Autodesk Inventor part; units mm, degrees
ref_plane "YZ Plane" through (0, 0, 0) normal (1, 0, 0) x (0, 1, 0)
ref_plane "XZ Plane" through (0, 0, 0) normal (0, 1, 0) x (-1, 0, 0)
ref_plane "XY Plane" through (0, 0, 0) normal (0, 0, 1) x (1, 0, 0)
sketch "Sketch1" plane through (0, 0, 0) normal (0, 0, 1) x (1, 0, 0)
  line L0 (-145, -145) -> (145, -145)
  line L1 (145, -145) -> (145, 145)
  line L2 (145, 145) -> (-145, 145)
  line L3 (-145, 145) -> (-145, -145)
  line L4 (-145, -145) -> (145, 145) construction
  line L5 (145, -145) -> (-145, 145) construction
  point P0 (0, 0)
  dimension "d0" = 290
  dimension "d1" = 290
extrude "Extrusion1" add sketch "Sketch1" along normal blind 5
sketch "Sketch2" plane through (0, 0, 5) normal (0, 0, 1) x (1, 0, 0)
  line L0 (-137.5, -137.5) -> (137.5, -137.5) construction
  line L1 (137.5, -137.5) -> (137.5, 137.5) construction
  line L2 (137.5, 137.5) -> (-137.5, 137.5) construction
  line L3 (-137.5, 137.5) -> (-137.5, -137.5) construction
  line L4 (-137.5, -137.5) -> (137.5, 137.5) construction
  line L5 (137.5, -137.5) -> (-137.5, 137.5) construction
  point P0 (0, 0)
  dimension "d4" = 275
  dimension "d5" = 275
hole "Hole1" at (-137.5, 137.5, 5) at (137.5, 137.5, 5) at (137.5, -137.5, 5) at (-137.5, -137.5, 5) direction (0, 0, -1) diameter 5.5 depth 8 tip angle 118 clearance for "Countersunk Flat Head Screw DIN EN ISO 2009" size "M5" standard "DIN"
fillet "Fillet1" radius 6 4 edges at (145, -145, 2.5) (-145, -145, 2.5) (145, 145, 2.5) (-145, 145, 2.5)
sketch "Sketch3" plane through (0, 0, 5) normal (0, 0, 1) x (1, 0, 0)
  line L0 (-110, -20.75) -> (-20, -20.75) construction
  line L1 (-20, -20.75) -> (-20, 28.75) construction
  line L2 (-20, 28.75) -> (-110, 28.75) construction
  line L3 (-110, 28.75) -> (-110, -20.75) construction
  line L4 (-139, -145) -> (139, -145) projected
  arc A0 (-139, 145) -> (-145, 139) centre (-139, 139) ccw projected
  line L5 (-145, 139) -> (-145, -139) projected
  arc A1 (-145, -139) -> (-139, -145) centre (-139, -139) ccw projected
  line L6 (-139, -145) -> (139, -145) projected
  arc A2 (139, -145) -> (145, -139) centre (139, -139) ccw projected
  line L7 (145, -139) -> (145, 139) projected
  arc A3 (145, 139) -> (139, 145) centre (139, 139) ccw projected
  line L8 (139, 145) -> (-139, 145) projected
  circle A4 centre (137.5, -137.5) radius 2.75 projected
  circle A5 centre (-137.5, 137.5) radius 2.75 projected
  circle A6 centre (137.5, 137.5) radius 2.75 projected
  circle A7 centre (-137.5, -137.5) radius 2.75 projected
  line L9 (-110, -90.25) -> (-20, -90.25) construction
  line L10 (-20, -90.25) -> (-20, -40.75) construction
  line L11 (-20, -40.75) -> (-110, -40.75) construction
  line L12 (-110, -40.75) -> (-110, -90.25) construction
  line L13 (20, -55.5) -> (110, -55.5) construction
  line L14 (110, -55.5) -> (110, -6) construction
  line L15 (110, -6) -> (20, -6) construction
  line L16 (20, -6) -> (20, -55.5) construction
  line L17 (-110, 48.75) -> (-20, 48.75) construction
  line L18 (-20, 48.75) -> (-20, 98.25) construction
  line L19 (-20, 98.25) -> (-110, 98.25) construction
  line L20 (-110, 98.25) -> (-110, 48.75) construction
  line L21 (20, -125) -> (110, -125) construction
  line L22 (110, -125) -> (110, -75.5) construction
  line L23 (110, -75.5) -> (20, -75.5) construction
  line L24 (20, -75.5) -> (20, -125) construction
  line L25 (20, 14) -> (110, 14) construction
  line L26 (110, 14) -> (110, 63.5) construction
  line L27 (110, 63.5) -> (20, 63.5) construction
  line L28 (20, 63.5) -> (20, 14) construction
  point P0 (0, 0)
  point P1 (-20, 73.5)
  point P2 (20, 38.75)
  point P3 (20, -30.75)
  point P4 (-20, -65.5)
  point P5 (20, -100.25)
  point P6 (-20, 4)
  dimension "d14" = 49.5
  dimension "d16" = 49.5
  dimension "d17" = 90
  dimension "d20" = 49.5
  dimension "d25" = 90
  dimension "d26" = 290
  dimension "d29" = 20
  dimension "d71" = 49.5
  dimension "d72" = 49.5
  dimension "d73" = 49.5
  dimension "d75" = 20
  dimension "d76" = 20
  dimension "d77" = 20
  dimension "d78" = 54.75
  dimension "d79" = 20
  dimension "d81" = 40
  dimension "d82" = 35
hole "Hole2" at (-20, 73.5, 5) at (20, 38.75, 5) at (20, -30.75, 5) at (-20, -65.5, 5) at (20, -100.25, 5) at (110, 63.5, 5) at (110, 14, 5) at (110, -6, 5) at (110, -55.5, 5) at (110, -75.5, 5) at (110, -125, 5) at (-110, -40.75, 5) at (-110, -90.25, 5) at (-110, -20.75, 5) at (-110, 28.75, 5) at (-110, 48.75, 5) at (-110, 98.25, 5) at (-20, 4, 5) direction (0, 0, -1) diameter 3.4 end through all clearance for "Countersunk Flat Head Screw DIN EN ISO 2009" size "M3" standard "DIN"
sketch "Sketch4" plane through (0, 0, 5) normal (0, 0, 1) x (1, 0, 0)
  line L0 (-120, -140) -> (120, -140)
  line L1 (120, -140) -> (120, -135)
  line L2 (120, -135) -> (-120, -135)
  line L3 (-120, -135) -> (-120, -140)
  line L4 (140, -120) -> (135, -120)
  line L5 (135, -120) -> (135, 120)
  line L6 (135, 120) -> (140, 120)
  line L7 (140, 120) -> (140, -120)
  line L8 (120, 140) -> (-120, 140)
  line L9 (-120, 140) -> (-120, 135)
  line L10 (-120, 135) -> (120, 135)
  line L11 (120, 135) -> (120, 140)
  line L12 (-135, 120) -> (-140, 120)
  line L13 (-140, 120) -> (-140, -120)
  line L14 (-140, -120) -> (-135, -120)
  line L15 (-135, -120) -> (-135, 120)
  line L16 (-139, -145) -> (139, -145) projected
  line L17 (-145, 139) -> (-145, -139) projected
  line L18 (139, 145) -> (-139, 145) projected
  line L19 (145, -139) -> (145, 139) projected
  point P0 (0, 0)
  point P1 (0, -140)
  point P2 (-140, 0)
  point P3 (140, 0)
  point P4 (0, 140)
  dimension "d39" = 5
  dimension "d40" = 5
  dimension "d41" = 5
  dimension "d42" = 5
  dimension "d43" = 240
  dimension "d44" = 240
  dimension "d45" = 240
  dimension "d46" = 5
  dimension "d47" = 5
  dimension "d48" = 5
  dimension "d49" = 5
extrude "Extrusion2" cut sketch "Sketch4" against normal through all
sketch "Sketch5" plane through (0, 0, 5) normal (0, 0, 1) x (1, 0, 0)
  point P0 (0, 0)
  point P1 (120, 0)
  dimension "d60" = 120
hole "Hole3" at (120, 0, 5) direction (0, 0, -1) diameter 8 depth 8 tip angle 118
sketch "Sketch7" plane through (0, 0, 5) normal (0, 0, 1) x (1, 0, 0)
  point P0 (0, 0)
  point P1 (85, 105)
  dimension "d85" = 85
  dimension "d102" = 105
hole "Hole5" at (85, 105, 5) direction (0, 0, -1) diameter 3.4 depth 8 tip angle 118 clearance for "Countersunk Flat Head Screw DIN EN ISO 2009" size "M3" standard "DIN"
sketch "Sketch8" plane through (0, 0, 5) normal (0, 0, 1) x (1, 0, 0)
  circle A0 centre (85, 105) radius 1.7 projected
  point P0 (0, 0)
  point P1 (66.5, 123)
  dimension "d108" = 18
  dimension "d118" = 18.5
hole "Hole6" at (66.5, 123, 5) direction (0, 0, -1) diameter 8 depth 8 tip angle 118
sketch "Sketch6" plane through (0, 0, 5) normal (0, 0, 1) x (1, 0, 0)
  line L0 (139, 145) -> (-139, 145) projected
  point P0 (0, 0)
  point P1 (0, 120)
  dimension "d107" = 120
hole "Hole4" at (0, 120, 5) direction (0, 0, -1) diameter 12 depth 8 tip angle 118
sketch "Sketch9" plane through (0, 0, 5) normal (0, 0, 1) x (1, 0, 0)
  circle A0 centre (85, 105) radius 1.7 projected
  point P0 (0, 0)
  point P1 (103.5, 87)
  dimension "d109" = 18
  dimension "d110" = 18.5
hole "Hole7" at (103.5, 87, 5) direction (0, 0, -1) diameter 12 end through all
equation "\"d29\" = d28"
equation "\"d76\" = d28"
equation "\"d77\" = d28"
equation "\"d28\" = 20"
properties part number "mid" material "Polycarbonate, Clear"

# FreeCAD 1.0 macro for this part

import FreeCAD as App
import Part
import Sketcher

V = App.Vector


def edges_at(feature, points):
    """Names of the edges that pass closest to the given points."""
    edges = feature.Shape.Edges
    near = lambda p: min(range(len(edges)), key=lambda i: edges[i].distToShape(Part.Vertex(*p))[0])
    return sorted({f"Edge{near(p) + 1}" for p in points})

doc = App.newDocument("Part")
body = doc.addObject("PartDesign::Body", "Body")

sketch1 = doc.addObject("Sketcher::SketchObject", "Sketch")
body.addObject(sketch1)
sketch1.AttachmentSupport = (doc.XY_Plane, [""])
sketch1.MapMode = "FlatFace"
sketch1.addGeometry([
    Part.LineSegment(V(-145, 145, 0), V(-145, -145, 0)),
    Part.LineSegment(V(-145, -145, 0), V(145, -145, 0)),
    Part.LineSegment(V(145, -145, 0), V(145, 145, 0)),
    Part.LineSegment(V(145, 145, 0), V(-145, 145, 0)),
], False)
sketch1.addConstraint([
    Sketcher.Constraint("Coincident", 0, 2, 1, 1),
    Sketcher.Constraint("Coincident", 1, 2, 2, 1),
    Sketcher.Constraint("Coincident", 2, 2, 3, 1),
    Sketcher.Constraint("Coincident", 3, 2, 0, 1),
    Sketcher.Constraint("Vertical", 0),
    Sketcher.Constraint("Horizontal", 1),
    Sketcher.Constraint("Vertical", 2),
    Sketcher.Constraint("Horizontal", 3),
    Sketcher.Constraint("Symmetric", 0, 2, 2, 2, -1, 1),
    Sketcher.Constraint("Equal", 3, 0),
    Sketcher.Constraint("DistanceX", 1, 1, 1, 2, 290.0),
])
pad1 = doc.addObject("PartDesign::Pad", "Pad")
body.addObject(pad1)
pad1.Profile = sketch1
pad1.Length = 5

sketch2 = doc.addObject("Sketcher::SketchObject", "Sketch001")
body.addObject(sketch2)
sketch2.AttachmentSupport = (doc.XY_Plane, [""])
sketch2.MapMode = "FlatFace"
sketch2.AttachmentOffset = App.Placement(V(0, 0, 5), App.Rotation())
sketch2.addGeometry([
    Part.Circle(V(-137.5, 137.5, 0), V(0, 0, 1), 2.75),
    Part.Circle(V(137.5, 137.5, 0), V(0, 0, 1), 2.75),
    Part.Circle(V(137.5, -137.5, 0), V(0, 0, 1), 2.75),
    Part.Circle(V(-137.5, -137.5, 0), V(0, 0, 1), 2.75),
], False)
sketch2.addConstraint([
    Sketcher.Constraint("Equal", 0, 1),
    Sketcher.Constraint("Equal", 1, 2),
    Sketcher.Constraint("Equal", 2, 3),
    Sketcher.Constraint("Symmetric", 0, 3, 2, 3, -1, 1),
    Sketcher.Constraint("Symmetric", 1, 3, 3, 3, -1, 1),
    Sketcher.Constraint("Symmetric", 0, 3, 1, 3, -2),
    Sketcher.Constraint("Diameter", 0, 5.5),
    Sketcher.Constraint("DistanceX", 0, 3, 1, 3, 275.0),
    Sketcher.Constraint("DistanceY", 2, 3, 1, 3, 275.0),
])
doc.recompute()
hole = doc.addObject("PartDesign::Hole", "Hole")
body.addObject(hole)
hole.Profile = sketch2
hole.ThreadType = "None"
hole.Diameter = 5.5
hole.DepthType = "Dimension"
hole.Depth = 8
hole.DrillPoint = "Angled"
hole.DrillPointAngle = 118
doc.recompute()

fillet = doc.addObject("PartDesign::Fillet", "Fillet")
body.addObject(fillet)
fillet.Base = (hole, edges_at(hole, [
    (145, -145, 2.5),
    (-145, -145, 2.5),
    (145, 145, 2.5),
    (-145, 145, 2.5),
]))
fillet.Radius = 6

sketch3 = doc.addObject("Sketcher::SketchObject", "Sketch002")
body.addObject(sketch3)
sketch3.AttachmentSupport = (doc.XY_Plane, [""])
sketch3.MapMode = "FlatFace"
sketch3.AttachmentOffset = App.Placement(V(0, 0, 5), App.Rotation())
sketch3.addGeometry([
    Part.Circle(V(-20, 73.5, 0), V(0, 0, 1), 1.7),
    Part.Circle(V(20, 38.75, 0), V(0, 0, 1), 1.7),
    Part.Circle(V(20, -30.75, 0), V(0, 0, 1), 1.7),
    Part.Circle(V(-20, -65.5, 0), V(0, 0, 1), 1.7),
    Part.Circle(V(20, -100.25, 0), V(0, 0, 1), 1.7),
    Part.Circle(V(110, 63.5, 0), V(0, 0, 1), 1.7),
    Part.Circle(V(110, 14, 0), V(0, 0, 1), 1.7),
    Part.Circle(V(110, -6, 0), V(0, 0, 1), 1.7),
    Part.Circle(V(110, -55.5, 0), V(0, 0, 1), 1.7),
    Part.Circle(V(110, -75.5, 0), V(0, 0, 1), 1.7),
    Part.Circle(V(110, -125, 0), V(0, 0, 1), 1.7),
    Part.Circle(V(-110, -40.75, 0), V(0, 0, 1), 1.7),
    Part.Circle(V(-110, -90.25, 0), V(0, 0, 1), 1.7),
    Part.Circle(V(-110, -20.75, 0), V(0, 0, 1), 1.7),
    Part.Circle(V(-110, 28.75, 0), V(0, 0, 1), 1.7),
    Part.Circle(V(-110, 48.75, 0), V(0, 0, 1), 1.7),
    Part.Circle(V(-110, 98.25, 0), V(0, 0, 1), 1.7),
    Part.Circle(V(-20, 4, 0), V(0, 0, 1), 1.7),
], False)
sketch3.addConstraint([
    Sketcher.Constraint("Equal", 0, 1),
    Sketcher.Constraint("Equal", 1, 2),
    Sketcher.Constraint("Equal", 2, 3),
    Sketcher.Constraint("Equal", 3, 4),
    Sketcher.Constraint("Equal", 4, 5),
    Sketcher.Constraint("Equal", 5, 6),
    Sketcher.Constraint("Equal", 6, 7),
    Sketcher.Constraint("Equal", 7, 8),
    Sketcher.Constraint("Equal", 8, 9),
    Sketcher.Constraint("Equal", 9, 10),
    Sketcher.Constraint("Equal", 10, 11),
    Sketcher.Constraint("Equal", 11, 12),
    Sketcher.Constraint("Equal", 12, 13),
    Sketcher.Constraint("Equal", 13, 14),
    Sketcher.Constraint("Equal", 14, 15),
    Sketcher.Constraint("Equal", 15, 16),
    Sketcher.Constraint("Equal", 16, 17),
    Sketcher.Constraint("Vertical", 1, 3, 2, 3),
    Sketcher.Constraint("Vertical", 0, 3, 3, 3),
    Sketcher.Constraint("Vertical", 2, 3, 4, 3),
    Sketcher.Constraint("Vertical", 5, 3, 6, 3),
    Sketcher.Constraint("Vertical", 6, 3, 7, 3),
    Sketcher.Constraint("Vertical", 7, 3, 8, 3),
    Sketcher.Constraint("Vertical", 8, 3, 9, 3),
    Sketcher.Constraint("Vertical", 9, 3, 10, 3),
    Sketcher.Constraint("Vertical", 11, 3, 12, 3),
    Sketcher.Constraint("Vertical", 12, 3, 13, 3),
    Sketcher.Constraint("Vertical", 13, 3, 14, 3),
    Sketcher.Constraint("Vertical", 14, 3, 15, 3),
    Sketcher.Constraint("Vertical", 15, 3, 16, 3),
    Sketcher.Constraint("Vertical", 3, 3, 17, 3),
    Sketcher.Constraint("Diameter", 0, 3.4),
    Sketcher.Constraint("DistanceX", 0, 3, -1, 1, 20.0),
    Sketcher.Constraint("DistanceX", -1, 1, 1, 3, 20.0),
    Sketcher.Constraint("DistanceX", -1, 1, 5, 3, 110.0),
    Sketcher.Constraint("DistanceY", -1, 1, 6, 3, 14.0),
    Sketcher.Constraint("DistanceY", 7, 3, -1, 1, 6.0),
    Sketcher.Constraint("DistanceY", 10, 3, -1, 1, 125.0),
    Sketcher.Constraint("DistanceX", 11, 3, -1, 1, 110.0),
    Sketcher.Constraint("DistanceY", -1, 1, 17, 3, 4.0),
    Sketcher.Constraint("DistanceY", 3, 3, 0, 3, 139.0),
    Sketcher.Constraint("DistanceY", 4, 3, 1, 3, 139.0),
    Sketcher.Constraint("DistanceY", 5, 3, 0, 3, 10.0),
    Sketcher.Constraint("DistanceY", 8, 3, 5, 3, 119.0),
    Sketcher.Constraint("DistanceY", 9, 3, 8, 3, 20.0),
    Sketcher.Constraint("DistanceY", 11, 3, 2, 3, 10.0),
    Sketcher.Constraint("DistanceY", 4, 3, 12, 3, 10.0),
    Sketcher.Constraint("DistanceY", 11, 3, 13, 3, 20.0),
    Sketcher.Constraint("DistanceY", 12, 3, 14, 3, 119.0),
    Sketcher.Constraint("DistanceY", 14, 3, 15, 3, 20.0),
    Sketcher.Constraint("DistanceY", 13, 3, 16, 3, 119.0),
    Sketcher.Constraint("DistanceY", -1, 1, 0, 3, 73.5),
    Sketcher.Constraint("DistanceY", 2, 3, 1, 3, 69.5),
    Sketcher.Constraint("DistanceY", -1, 1, 1, 3, 38.75),
])
doc.recompute()
hole2 = doc.addObject("PartDesign::Hole", "Hole001")
body.addObject(hole2)
hole2.Profile = sketch3
hole2.ThreadType = "None"
hole2.Diameter = 3.4
hole2.DepthType = "ThroughAll"

sketch4 = doc.addObject("Sketcher::SketchObject", "Sketch003")
body.addObject(sketch4)
sketch4.AttachmentSupport = (doc.XY_Plane, [""])
sketch4.MapMode = "FlatFace"
sketch4.AttachmentOffset = App.Placement(V(0, 0, 5), App.Rotation())
sketch4.addGeometry([
    Part.LineSegment(V(-120, -135, 0), V(-120, -140, 0)),
    Part.LineSegment(V(-120, -140, 0), V(120, -140, 0)),
    Part.LineSegment(V(120, -140, 0), V(120, -135, 0)),
    Part.LineSegment(V(120, -135, 0), V(-120, -135, 0)),
    Part.LineSegment(V(135, -120, 0), V(140, -120, 0)),
    Part.LineSegment(V(140, -120, 0), V(140, 120, 0)),
    Part.LineSegment(V(140, 120, 0), V(135, 120, 0)),
    Part.LineSegment(V(135, 120, 0), V(135, -120, 0)),
    Part.LineSegment(V(120, 135, 0), V(120, 140, 0)),
    Part.LineSegment(V(120, 140, 0), V(-120, 140, 0)),
    Part.LineSegment(V(-120, 140, 0), V(-120, 135, 0)),
    Part.LineSegment(V(-120, 135, 0), V(120, 135, 0)),
    Part.LineSegment(V(-135, -120, 0), V(-135, 120, 0)),
    Part.LineSegment(V(-135, 120, 0), V(-140, 120, 0)),
    Part.LineSegment(V(-140, 120, 0), V(-140, -120, 0)),
    Part.LineSegment(V(-140, -120, 0), V(-135, -120, 0)),
], False)
sketch4.addConstraint([
    Sketcher.Constraint("Coincident", 0, 2, 1, 1),
    Sketcher.Constraint("Coincident", 1, 2, 2, 1),
    Sketcher.Constraint("Coincident", 2, 2, 3, 1),
    Sketcher.Constraint("Coincident", 3, 2, 0, 1),
    Sketcher.Constraint("Coincident", 4, 2, 5, 1),
    Sketcher.Constraint("Coincident", 5, 2, 6, 1),
    Sketcher.Constraint("Coincident", 6, 2, 7, 1),
    Sketcher.Constraint("Coincident", 7, 2, 4, 1),
    Sketcher.Constraint("Coincident", 8, 2, 9, 1),
    Sketcher.Constraint("Coincident", 9, 2, 10, 1),
    Sketcher.Constraint("Coincident", 10, 2, 11, 1),
    Sketcher.Constraint("Coincident", 11, 2, 8, 1),
    Sketcher.Constraint("Coincident", 12, 2, 13, 1),
    Sketcher.Constraint("Coincident", 13, 2, 14, 1),
    Sketcher.Constraint("Coincident", 14, 2, 15, 1),
    Sketcher.Constraint("Coincident", 15, 2, 12, 1),
    Sketcher.Constraint("Vertical", 0),
    Sketcher.Constraint("Horizontal", 1),
    Sketcher.Constraint("Vertical", 2),
    Sketcher.Constraint("Horizontal", 3),
    Sketcher.Constraint("Horizontal", 4),
    Sketcher.Constraint("Vertical", 5),
    Sketcher.Constraint("Horizontal", 6),
    Sketcher.Constraint("Vertical", 7),
    Sketcher.Constraint("Vertical", 8),
    Sketcher.Constraint("Horizontal", 9),
    Sketcher.Constraint("Vertical", 10),
    Sketcher.Constraint("Horizontal", 11),
    Sketcher.Constraint("Vertical", 12),
    Sketcher.Constraint("Horizontal", 13),
    Sketcher.Constraint("Vertical", 14),
    Sketcher.Constraint("Horizontal", 15),
    Sketcher.Constraint("Symmetric", 0, 2, 8, 2, -1, 1),
    Sketcher.Constraint("Symmetric", 2, 2, 10, 2, -1, 1),
    Sketcher.Constraint("Symmetric", 7, 2, 12, 2, -1, 1),
    Sketcher.Constraint("Symmetric", 5, 2, 14, 2, -1, 1),
    Sketcher.Constraint("Horizontal", 6, 2, 12, 2),
    Sketcher.Constraint("Vertical", 2, 2, 8, 2),
    Sketcher.Constraint("Equal", 15, 0),
    Sketcher.Constraint("Equal", 11, 5),
    Sketcher.Constraint("DistanceX", 1, 1, 1, 2, 240.0),
    Sketcher.Constraint("DistanceX", 4, 1, 4, 2, 5.0),
    Sketcher.Constraint("DistanceY", 0, 2, -1, 1, 140.0),
    Sketcher.Constraint("DistanceX", -1, 1, 4, 2, 140.0),
])
pocket1 = doc.addObject("PartDesign::Pocket", "Pocket")
body.addObject(pocket1)
pocket1.Profile = sketch4
pocket1.Type = "ThroughAll"

sketch5 = doc.addObject("Sketcher::SketchObject", "Sketch004")
body.addObject(sketch5)
sketch5.AttachmentSupport = (doc.XY_Plane, [""])
sketch5.MapMode = "FlatFace"
sketch5.AttachmentOffset = App.Placement(V(0, 0, 5), App.Rotation())
sketch5.addGeometry(Part.Circle(V(120, 0, 0), V(0, 0, 1), 4), False)
sketch5.addConstraint([
    Sketcher.Constraint("PointOnObject", 0, 3, -1),
    Sketcher.Constraint("Diameter", 0, 8.0),
    Sketcher.Constraint("DistanceX", -1, 1, 0, 3, 120.0),
])
doc.recompute()
hole3 = doc.addObject("PartDesign::Hole", "Hole002")
body.addObject(hole3)
hole3.Profile = sketch5
hole3.ThreadType = "None"
hole3.Diameter = 8
hole3.DepthType = "Dimension"
hole3.Depth = 8
hole3.DrillPoint = "Angled"
hole3.DrillPointAngle = 118

sketch6 = doc.addObject("Sketcher::SketchObject", "Sketch005")
body.addObject(sketch6)
sketch6.AttachmentSupport = (doc.XY_Plane, [""])
sketch6.MapMode = "FlatFace"
sketch6.AttachmentOffset = App.Placement(V(0, 0, 5), App.Rotation())
sketch6.addGeometry(Part.Circle(V(85, 105, 0), V(0, 0, 1), 1.7), False)
sketch6.addConstraint([
    Sketcher.Constraint("Diameter", 0, 3.4),
    Sketcher.Constraint("DistanceX", -1, 1, 0, 3, 85.0),
    Sketcher.Constraint("DistanceY", -1, 1, 0, 3, 105.0),
])
doc.recompute()
hole4 = doc.addObject("PartDesign::Hole", "Hole003")
body.addObject(hole4)
hole4.Profile = sketch6
hole4.ThreadType = "None"
hole4.Diameter = 3.4
hole4.DepthType = "Dimension"
hole4.Depth = 8
hole4.DrillPoint = "Angled"
hole4.DrillPointAngle = 118

sketch7 = doc.addObject("Sketcher::SketchObject", "Sketch006")
body.addObject(sketch7)
sketch7.AttachmentSupport = (doc.XY_Plane, [""])
sketch7.MapMode = "FlatFace"
sketch7.AttachmentOffset = App.Placement(V(0, 0, 5), App.Rotation())
sketch7.addGeometry(Part.Circle(V(66.5, 123, 0), V(0, 0, 1), 4), False)
sketch7.addConstraint([
    Sketcher.Constraint("Diameter", 0, 8.0),
    Sketcher.Constraint("DistanceY", -1, 1, 0, 3, 123.0),
    Sketcher.Constraint("DistanceX", -1, 1, 0, 3, 66.5),
])
doc.recompute()
hole5 = doc.addObject("PartDesign::Hole", "Hole004")
body.addObject(hole5)
hole5.Profile = sketch7
hole5.ThreadType = "None"
hole5.Diameter = 8
hole5.DepthType = "Dimension"
hole5.Depth = 8
hole5.DrillPoint = "Angled"
hole5.DrillPointAngle = 118

sketch8 = doc.addObject("Sketcher::SketchObject", "Sketch007")
body.addObject(sketch8)
sketch8.AttachmentSupport = (doc.XY_Plane, [""])
sketch8.MapMode = "FlatFace"
sketch8.AttachmentOffset = App.Placement(V(0, 0, 5), App.Rotation())
sketch8.addGeometry(Part.Circle(V(0, 120, 0), V(0, 0, 1), 6), False)
sketch8.addConstraint([
    Sketcher.Constraint("PointOnObject", 0, 3, -2),
    Sketcher.Constraint("Diameter", 0, 12.0),
    Sketcher.Constraint("DistanceY", -1, 1, 0, 3, 120.0),
])
doc.recompute()
hole6 = doc.addObject("PartDesign::Hole", "Hole005")
body.addObject(hole6)
hole6.Profile = sketch8
hole6.ThreadType = "None"
hole6.Diameter = 12
hole6.DepthType = "Dimension"
hole6.Depth = 8
hole6.DrillPoint = "Angled"
hole6.DrillPointAngle = 118

sketch9 = doc.addObject("Sketcher::SketchObject", "Sketch008")
body.addObject(sketch9)
sketch9.AttachmentSupport = (doc.XY_Plane, [""])
sketch9.MapMode = "FlatFace"
sketch9.AttachmentOffset = App.Placement(V(0, 0, 5), App.Rotation())
sketch9.addGeometry(Part.Circle(V(103.5, 87, 0), V(0, 0, 1), 6), False)
sketch9.addConstraint([
    Sketcher.Constraint("Diameter", 0, 12.0),
    Sketcher.Constraint("DistanceY", -1, 1, 0, 3, 87.0),
    Sketcher.Constraint("DistanceX", -1, 1, 0, 3, 103.5),
])
doc.recompute()
hole7 = doc.addObject("PartDesign::Hole", "Hole006")
body.addObject(hole7)
hole7.Profile = sketch9
hole7.ThreadType = "None"
hole7.Diameter = 12
hole7.DepthType = "ThroughAll"

doc.recompute()
